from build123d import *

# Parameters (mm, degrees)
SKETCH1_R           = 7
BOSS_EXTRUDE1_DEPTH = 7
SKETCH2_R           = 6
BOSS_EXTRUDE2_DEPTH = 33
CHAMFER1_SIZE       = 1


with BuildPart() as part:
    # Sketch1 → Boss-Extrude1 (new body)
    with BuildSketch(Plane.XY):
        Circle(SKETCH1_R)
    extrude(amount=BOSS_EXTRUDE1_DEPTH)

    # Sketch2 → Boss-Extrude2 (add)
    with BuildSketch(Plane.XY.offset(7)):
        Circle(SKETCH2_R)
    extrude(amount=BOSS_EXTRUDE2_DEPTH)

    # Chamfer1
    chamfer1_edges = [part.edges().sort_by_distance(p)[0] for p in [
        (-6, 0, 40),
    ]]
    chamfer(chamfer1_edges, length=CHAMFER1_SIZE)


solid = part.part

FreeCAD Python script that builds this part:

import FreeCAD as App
import Part
import Sketcher
from FreeCAD import Vector
Q = App.Units.Quantity


def edges_at(feature, points):
    """Names of the edges that pass closest to the given points."""
    edges = feature.Shape.Edges
    near = lambda p: min(range(len(edges)), key=lambda i: edges[i].distToShape(Part.Vertex(*p))[0])
    return sorted({f"Edge{near(p) + 1}" for p in points})

doc = App.newDocument("Part")
body = doc.addObject("PartDesign::Body", "Body")

sketch1 = doc.addObject("Sketcher::SketchObject", "Sketch")
body.addObject(sketch1)
sketch1.AttachmentSupport = (doc.XY_Plane, [""])
sketch1.MapMode = "FlatFace"
sketch1.addGeometry(Part.Circle(Vector(0, 0, 0), Vector(0, 0, 1), 7), False)
sketch1.addConstraint([
    Sketcher.Constraint("Coincident", 0, 3, -1, 1),
    Sketcher.Constraint("Diameter", 0, Q("14 mm")),
])
pad1 = doc.addObject("PartDesign::Pad", "Pad")
body.addObject(pad1)
pad1.Profile = sketch1
pad1.Length = 7

sketch2 = doc.addObject("Sketcher::SketchObject", "Sketch001")
body.addObject(sketch2)
sketch2.AttachmentSupport = (doc.XY_Plane, [""])
sketch2.MapMode = "FlatFace"
sketch2.AttachmentOffset = App.Placement(Vector(0, 0, 7), App.Rotation())
sketch2.addGeometry(Part.Circle(Vector(0, 0, 0), Vector(0, 0, 1), 6), False)
sketch2.addConstraint([
    Sketcher.Constraint("Coincident", 0, 3, -1, 1),
    Sketcher.Constraint("Diameter", 0, Q("12 mm")),
])
pad2 = doc.addObject("PartDesign::Pad", "Pad001")
body.addObject(pad2)
pad2.Profile = sketch2
pad2.Length = 33
doc.recompute()

chamfer = doc.addObject("PartDesign::Chamfer", "Chamfer")
body.addObject(chamfer)
chamfer.Base = (pad2, edges_at(pad2, [(-6, 0, 40)]))
chamfer.Size = 1

doc.recompute()
